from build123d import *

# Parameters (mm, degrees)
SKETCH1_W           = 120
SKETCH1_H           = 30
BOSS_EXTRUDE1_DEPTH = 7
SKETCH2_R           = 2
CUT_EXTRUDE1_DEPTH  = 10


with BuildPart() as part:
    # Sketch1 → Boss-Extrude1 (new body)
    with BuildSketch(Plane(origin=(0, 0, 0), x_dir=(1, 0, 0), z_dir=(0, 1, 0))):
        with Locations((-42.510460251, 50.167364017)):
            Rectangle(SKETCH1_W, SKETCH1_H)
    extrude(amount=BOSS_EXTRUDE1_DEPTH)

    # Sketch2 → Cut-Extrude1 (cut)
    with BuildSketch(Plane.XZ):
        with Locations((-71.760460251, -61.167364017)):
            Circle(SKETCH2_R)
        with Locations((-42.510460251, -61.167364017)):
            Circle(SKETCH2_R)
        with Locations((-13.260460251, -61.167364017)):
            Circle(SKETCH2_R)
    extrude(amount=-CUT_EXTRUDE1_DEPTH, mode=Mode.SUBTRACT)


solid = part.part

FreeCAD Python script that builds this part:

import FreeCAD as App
import Part
import Sketcher
from FreeCAD import Vector


def add_polygon(sketch, points):
    """Adds a closed chain of lines whose ends are joined by coincident constraints."""
    first, n = sketch.GeometryCount, len(points)
    for a, b in zip(points, points[1:] + points[:1]):
        sketch.addGeometry(Part.LineSegment(App.Vector(*a, 0), App.Vector(*b, 0)), False)
    for i in range(n):
        sketch.addConstraint(Sketcher.Constraint("Coincident", first + i, 2, first + (i + 1) % n, 1))

doc = App.newDocument("Part")
params = doc.addObject("Spreadsheet::Sheet", "Params")
for row, (alias, value) in enumerate([
    ("sketch1_width", "120 mm"),
    ("sketch1_height", "30 mm"),
    ("pad1_length", "7 mm"),
    ("sketch2_diameter", "4 mm"),
    ("pocket1_length", "10 mm"),
], start=1):
    params.set(f"A{row}", alias)
    params.set(f"B{row}", "=" + value)
    params.setAlias(f"B{row}", alias)

body = doc.addObject("PartDesign::Body", "Body")

# Sketch on XZ plane
sketch1 = doc.addObject("Sketcher::SketchObject", "Sketch")
body.addObject(sketch1)
sketch1.AttachmentSupport = (doc.XZ_Plane, [""])
sketch1.MapMode = "FlatFace"
add_polygon(sketch1, [(-102.51046, -65.167364), (-102.51046, -35.167364), (17.48954, -35.167364), (17.48954, -65.167364)])  # lines 0-3
sketch1.addConstraint([
    Sketcher.Constraint("Vertical", 0),
    Sketcher.Constraint("Horizontal", 1),
    Sketcher.Constraint("Vertical", 2),
    Sketcher.Constraint("Horizontal", 3),
    Sketcher.Constraint("DistanceX", 1, 1, 1, 2, 120.0),
    Sketcher.Constraint("DistanceY", 0, 1, 0, 2, 30.0),
    Sketcher.Constraint("DistanceX", 0, 2, -1, 1, 102.51046),
    Sketcher.Constraint("DistanceY", 0, 2, -1, 1, 35.167364),
])
sketch1.setExpression("Constraints[8]", "Params.sketch1_width")
sketch1.setExpression("Constraints[9]", "Params.sketch1_height")
pad1 = doc.addObject("PartDesign::Pad", "Pad")
body.addObject(pad1)
pad1.Profile = sketch1
pad1.setExpression("Length", "Params.pad1_length")
pad1.Reversed = True

# Sketch on XZ plane
sketch2 = doc.addObject("Sketcher::SketchObject", "Sketch001")
body.addObject(sketch2)
sketch2.AttachmentSupport = (doc.XZ_Plane, [""])
sketch2.MapMode = "FlatFace"
sketch2.addGeometry([
    Part.Circle(Vector(-71.76046, -61.167364, 0), Vector(0, 0, 1), 2),
    Part.Circle(Vector(-42.51046, -61.167364, 0), Vector(0, 0, 1), 2),
    Part.Circle(Vector(-13.26046, -61.167364, 0), Vector(0, 0, 1), 2),
], False)
sketch2.addConstraint([
    Sketcher.Constraint("Equal", 0, 1),
    Sketcher.Constraint("Equal", 1, 2),
    Sketcher.Constraint("Horizontal", 0, 3, 1, 3),
    Sketcher.Constraint("Horizontal", 1, 3, 2, 3),
    Sketcher.Constraint("Diameter", 0, 4.0),
    Sketcher.Constraint("DistanceX", 0, 3, 2, 3, 58.5),
    Sketcher.Constraint("DistanceX", 0, 3, 1, 3, 29.25),
    Sketcher.Constraint("DistanceX", 0, 3, -1, 1, 71.76046),
    Sketcher.Constraint("DistanceY", 0, 3, -1, 1, 61.167364),
])
sketch2.setExpression("Constraints[4]", "Params.sketch2_diameter")
pocket1 = doc.addObject("PartDesign::Pocket", "Pocket")
body.addObject(pocket1)
pocket1.Profile = sketch2
pocket1.setExpression("Length", "Params.pocket1_length")

doc.recompute()
